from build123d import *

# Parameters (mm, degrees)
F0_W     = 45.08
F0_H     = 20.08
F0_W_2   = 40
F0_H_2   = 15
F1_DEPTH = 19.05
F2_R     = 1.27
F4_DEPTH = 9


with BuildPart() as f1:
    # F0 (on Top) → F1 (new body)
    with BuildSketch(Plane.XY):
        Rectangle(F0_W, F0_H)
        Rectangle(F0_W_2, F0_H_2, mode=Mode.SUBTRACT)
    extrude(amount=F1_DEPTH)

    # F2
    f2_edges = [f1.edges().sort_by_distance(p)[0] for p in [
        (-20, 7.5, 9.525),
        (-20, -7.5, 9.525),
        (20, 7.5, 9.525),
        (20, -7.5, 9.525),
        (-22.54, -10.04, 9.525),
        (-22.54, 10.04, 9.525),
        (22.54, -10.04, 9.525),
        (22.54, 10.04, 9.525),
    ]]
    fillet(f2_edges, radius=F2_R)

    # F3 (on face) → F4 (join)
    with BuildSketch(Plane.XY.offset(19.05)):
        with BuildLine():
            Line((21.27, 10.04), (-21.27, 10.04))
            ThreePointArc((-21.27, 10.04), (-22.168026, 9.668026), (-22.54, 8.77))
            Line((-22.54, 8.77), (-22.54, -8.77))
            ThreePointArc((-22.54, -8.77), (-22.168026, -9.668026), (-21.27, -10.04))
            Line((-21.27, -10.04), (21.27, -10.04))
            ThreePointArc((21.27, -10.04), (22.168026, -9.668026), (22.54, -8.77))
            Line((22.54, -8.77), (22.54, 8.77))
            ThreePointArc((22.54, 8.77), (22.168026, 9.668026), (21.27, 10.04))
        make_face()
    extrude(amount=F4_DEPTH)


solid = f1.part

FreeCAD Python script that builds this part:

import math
import FreeCAD as App
import Part
import Sketcher

V = App.Vector
Q = App.Units.Quantity


def edges_at(feature, points):
    """Names of the edges that pass closest to the given points."""
    edges = feature.Shape.Edges
    near = lambda p: min(range(len(edges)), key=lambda i: edges[i].distToShape(Part.Vertex(*p))[0])
    return sorted({f"Edge{near(p) + 1}" for p in points})

doc = App.newDocument("Part")
body = doc.addObject("PartDesign::Body", "Body")

# Sketch on XY plane
sketch1 = body.newObject("Sketcher::SketchObject", "Sketch")
sketch1.AttachmentSupport = (doc.getObject("XY_Plane"), [""])
sketch1.MapMode = "FlatFace"
sketch1.addGeometry(Part.LineSegment(V(-23, 10, 0), V(-23, -10, 0)), False)
sketch1.addGeometry(Part.LineSegment(V(-23, -10, 0), V(23, -10, 0)), False)
sketch1.addGeometry(Part.LineSegment(V(23, -10, 0), V(23, 10, 0)), False)
sketch1.addGeometry(Part.LineSegment(V(23, 10, 0), V(-23, 10, 0)), False)
sketch1.addGeometry(Part.LineSegment(V(20, -8, 0), V(-20, -8, 0)), False)
sketch1.addGeometry(Part.LineSegment(V(-20, -8, 0), V(-20, 8, 0)), False)
sketch1.addGeometry(Part.LineSegment(V(-20, 8, 0), V(20, 8, 0)), False)
sketch1.addGeometry(Part.LineSegment(V(20, 8, 0), V(20, -8, 0)), False)
sketch1.addConstraint(Sketcher.Constraint("Coincident", 0, 2, 1, 1))
sketch1.addConstraint(Sketcher.Constraint("Coincident", 1, 2, 2, 1))
sketch1.addConstraint(Sketcher.Constraint("Coincident", 2, 2, 3, 1))
sketch1.addConstraint(Sketcher.Constraint("Coincident", 3, 2, 0, 1))
sketch1.addConstraint(Sketcher.Constraint("Coincident", 4, 2, 5, 1))
sketch1.addConstraint(Sketcher.Constraint("Coincident", 5, 2, 6, 1))
sketch1.addConstraint(Sketcher.Constraint("Coincident", 6, 2, 7, 1))
sketch1.addConstraint(Sketcher.Constraint("Coincident", 7, 2, 4, 1))
sketch1.addConstraint(Sketcher.Constraint("Vertical", 0))
sketch1.addConstraint(Sketcher.Constraint("Horizontal", 1))
sketch1.addConstraint(Sketcher.Constraint("Vertical", 2))
sketch1.addConstraint(Sketcher.Constraint("Horizontal", 3))
sketch1.addConstraint(Sketcher.Constraint("Horizontal", 4))
sketch1.addConstraint(Sketcher.Constraint("Vertical", 5))
sketch1.addConstraint(Sketcher.Constraint("Horizontal", 6))
sketch1.addConstraint(Sketcher.Constraint("Vertical", 7))
sketch1.addConstraint(Sketcher.Constraint("Symmetric", 0, 2, 2, 2, -1, 1))
sketch1.addConstraint(Sketcher.Constraint("Symmetric", 4, 2, 6, 2, -1, 1))
sketch1.addConstraint(Sketcher.Constraint("DistanceX", 4, 2, 4, 1, Q("40 mm")))
sketch1.addConstraint(Sketcher.Constraint("DistanceY", 5, 1, 5, 2, Q("15 mm")))
sketch1.addConstraint(Sketcher.Constraint("DistanceX", 1, 1, 1, 2, Q("45.08 mm")))
sketch1.addConstraint(Sketcher.Constraint("DistanceY", 0, 2, 0, 1, Q("20.08 mm")))
pad1 = body.newObject("PartDesign::Pad", "Pad")
pad1.Profile = sketch1
pad1.Length = 19.05
doc.recompute()

fillet = body.newObject("PartDesign::Fillet", "Fillet")
fillet.Base = (pad1, edges_at(pad1, [
    (-20, 7.5, 9.525),
    (-20, -7.5, 9.525),
    (20, 7.5, 9.525),
    (20, -7.5, 9.525),
    (-22.54, -10.04, 9.525),
    (-22.54, 10.04, 9.525),
    (22.54, -10.04, 9.525),
    (22.54, 10.04, 9.525),
]))
fillet.Radius = 1.27

# Sketch on XY plane
sketch2 = body.newObject("Sketcher::SketchObject", "Sketch001")
sketch2.AttachmentSupport = (doc.getObject("XY_Plane"), [""])
sketch2.MapMode = "FlatFace"
sketch2.AttachmentOffset = App.Placement(V(0, 0, 19.05), App.Rotation())
sketch2.addGeometry(Part.LineSegment(V(21.3, 10, 0), V(-21.3, 10, 0)), False)
sketch2.addGeometry(Part.ArcOfCircle(Part.Circle(V(-21.3, 8.8, 0), V(0, 0, 1), 1.3), math.radians(90), math.radians(180)), False)
sketch2.addGeometry(Part.LineSegment(V(-22.5, 8.8, 0), V(-22.5, -8.8, 0)), False)
sketch2.addGeometry(Part.ArcOfCircle(Part.Circle(V(-21.3, -8.8, 0), V(0, 0, 1), 1.3), math.radians(180), math.radians(270)), False)
sketch2.addGeometry(Part.LineSegment(V(-21.3, -10, 0), V(21.3, -10, 0)), False)
sketch2.addGeometry(Part.ArcOfCircle(Part.Circle(V(21.3, -8.8, 0), V(0, 0, 1), 1.3), math.radians(-90), math.radians(0)), False)
sketch2.addGeometry(Part.LineSegment(V(22.5, -8.8, 0), V(22.5, 8.8, 0)), False)
sketch2.addGeometry(Part.ArcOfCircle(Part.Circle(V(21.3, 8.8, 0), V(0, 0, 1), 1.3), math.radians(0), math.radians(90)), False)
sketch2.addConstraint(Sketcher.Constraint("Tangent", 0, 2, 1, 1))
sketch2.addConstraint(Sketcher.Constraint("Tangent", 1, 2, 2, 1))
sketch2.addConstraint(Sketcher.Constraint("Tangent", 2, 2, 3, 1))
sketch2.addConstraint(Sketcher.Constraint("Tangent", 3, 2, 4, 1))
sketch2.addConstraint(Sketcher.Constraint("Tangent", 4, 2, 5, 1))
sketch2.addConstraint(Sketcher.Constraint("Tangent", 5, 2, 6, 1))
sketch2.addConstraint(Sketcher.Constraint("Tangent", 6, 2, 7, 1))
sketch2.addConstraint(Sketcher.Constraint("Tangent", 7, 2, 0, 1))
sketch2.addConstraint(Sketcher.Constraint("Horizontal", 0))
sketch2.addConstraint(Sketcher.Constraint("Vertical", 2))
sketch2.addConstraint(Sketcher.Constraint("Horizontal", 4))
sketch2.addConstraint(Sketcher.Constraint("Vertical", 6))
sketch2.addConstraint(Sketcher.Constraint("Equal", 1, 3))
sketch2.addConstraint(Sketcher.Constraint("Equal", 3, 5))
sketch2.addConstraint(Sketcher.Constraint("Equal", 5, 7))
sketch2.addConstraint(Sketcher.Constraint("Symmetric", 1, 3, 5, 3, -1, 1))
sketch2.addConstraint(Sketcher.Constraint("Radius", 1, Q("1.269999 mm")))
sketch2.addConstraint(Sketcher.Constraint("DistanceX", 0, 2, 0, 1, Q("42.54 mm")))
sketch2.addConstraint(Sketcher.Constraint("DistanceY", 2, 2, 2, 1, Q("17.54 mm")))
pad2 = body.newObject("PartDesign::Pad", "Pad001")
pad2.Profile = sketch2
pad2.Length = 9

doc.recompute()
